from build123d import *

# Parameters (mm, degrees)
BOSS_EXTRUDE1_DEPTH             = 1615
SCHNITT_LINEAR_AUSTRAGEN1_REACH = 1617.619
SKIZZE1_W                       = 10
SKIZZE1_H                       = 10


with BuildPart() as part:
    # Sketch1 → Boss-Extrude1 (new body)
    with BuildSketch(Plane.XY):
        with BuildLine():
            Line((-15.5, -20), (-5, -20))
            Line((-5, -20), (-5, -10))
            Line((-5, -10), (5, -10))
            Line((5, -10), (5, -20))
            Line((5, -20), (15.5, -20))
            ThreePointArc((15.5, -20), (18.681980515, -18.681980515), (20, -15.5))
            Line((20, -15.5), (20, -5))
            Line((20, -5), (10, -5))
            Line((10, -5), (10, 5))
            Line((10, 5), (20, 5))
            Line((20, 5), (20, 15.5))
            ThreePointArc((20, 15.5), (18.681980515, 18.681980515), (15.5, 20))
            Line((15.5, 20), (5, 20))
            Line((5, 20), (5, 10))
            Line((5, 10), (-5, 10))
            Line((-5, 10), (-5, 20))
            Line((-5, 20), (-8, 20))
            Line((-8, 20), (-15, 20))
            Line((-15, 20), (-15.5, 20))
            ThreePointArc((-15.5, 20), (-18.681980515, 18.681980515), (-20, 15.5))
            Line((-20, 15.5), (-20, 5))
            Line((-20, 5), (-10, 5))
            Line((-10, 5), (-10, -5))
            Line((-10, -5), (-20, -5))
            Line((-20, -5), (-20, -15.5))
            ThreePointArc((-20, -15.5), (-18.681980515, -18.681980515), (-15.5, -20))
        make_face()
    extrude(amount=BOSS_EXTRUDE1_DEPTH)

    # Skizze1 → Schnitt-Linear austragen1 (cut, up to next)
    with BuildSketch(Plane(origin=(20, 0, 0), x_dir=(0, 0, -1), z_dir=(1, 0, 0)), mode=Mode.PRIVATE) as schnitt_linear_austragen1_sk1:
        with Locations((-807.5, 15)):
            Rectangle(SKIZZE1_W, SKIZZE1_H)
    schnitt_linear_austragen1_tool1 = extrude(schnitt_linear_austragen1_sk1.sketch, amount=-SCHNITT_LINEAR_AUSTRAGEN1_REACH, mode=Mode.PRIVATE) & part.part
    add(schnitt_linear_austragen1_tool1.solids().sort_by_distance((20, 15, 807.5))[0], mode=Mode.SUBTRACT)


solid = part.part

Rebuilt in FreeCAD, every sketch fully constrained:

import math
import FreeCAD as App
import Part
import Sketcher
from FreeCAD import Vector

doc = App.newDocument("Part")
body = doc.addObject("PartDesign::Body", "Body")

# Sketch on XY plane
sketch1 = body.newObject("Sketcher::SketchObject", "Sketch")
sketch1.AttachmentSupport = (doc.getObject("XY_Plane"), [""])
sketch1.MapMode = "FlatFace"
sketch1.addGeometry(Part.LineSegment(Vector(-15.5, -20, 0), Vector(-5, -20, 0)), False)
sketch1.addGeometry(Part.LineSegment(Vector(-5, -20, 0), Vector(-5, -10, 0)), False)
sketch1.addGeometry(Part.LineSegment(Vector(-5, -10, 0), Vector(5, -10, 0)), False)
sketch1.addGeometry(Part.LineSegment(Vector(5, -10, 0), Vector(5, -20, 0)), False)
sketch1.addGeometry(Part.LineSegment(Vector(5, -20, 0), Vector(15.5, -20, 0)), False)
sketch1.addGeometry(Part.ArcOfCircle(Part.Circle(Vector(15.5, -15.5, 0), Vector(0, 0, 1), 4.5), math.radians(-90), math.radians(0)), False)
sketch1.addGeometry(Part.LineSegment(Vector(20, -15.5, 0), Vector(20, -5, 0)), False)
sketch1.addGeometry(Part.LineSegment(Vector(20, -5, 0), Vector(10, -5, 0)), False)
sketch1.addGeometry(Part.LineSegment(Vector(10, -5, 0), Vector(10, 5, 0)), False)
sketch1.addGeometry(Part.LineSegment(Vector(10, 5, 0), Vector(20, 5, 0)), False)
sketch1.addGeometry(Part.LineSegment(Vector(20, 5, 0), Vector(20, 15.5, 0)), False)
sketch1.addGeometry(Part.ArcOfCircle(Part.Circle(Vector(15.5, 15.5, 0), Vector(0, 0, 1), 4.5), math.radians(0), math.radians(90)), False)
sketch1.addGeometry(Part.LineSegment(Vector(15.5, 20, 0), Vector(5, 20, 0)), False)
sketch1.addGeometry(Part.LineSegment(Vector(5, 20, 0), Vector(5, 10, 0)), False)
sketch1.addGeometry(Part.LineSegment(Vector(5, 10, 0), Vector(-5, 10, 0)), False)
sketch1.addGeometry(Part.LineSegment(Vector(-5, 10, 0), Vector(-5, 20, 0)), False)
sketch1.addGeometry(Part.LineSegment(Vector(-5, 20, 0), Vector(-15.5, 20, 0)), False)
sketch1.addGeometry(Part.ArcOfCircle(Part.Circle(Vector(-15.5, 15.5, 0), Vector(0, 0, 1), 4.5), math.radians(90), math.radians(180)), False)
sketch1.addGeometry(Part.LineSegment(Vector(-20, 15.5, 0), Vector(-20, 5, 0)), False)
sketch1.addGeometry(Part.LineSegment(Vector(-20, 5, 0), Vector(-10, 5, 0)), False)
sketch1.addGeometry(Part.LineSegment(Vector(-10, 5, 0), Vector(-10, -5, 0)), False)
sketch1.addGeometry(Part.LineSegment(Vector(-10, -5, 0), Vector(-20, -5, 0)), False)
sketch1.addGeometry(Part.LineSegment(Vector(-20, -5, 0), Vector(-20, -15.5, 0)), False)
sketch1.addGeometry(Part.ArcOfCircle(Part.Circle(Vector(-15.5, -15.5, 0), Vector(0, 0, 1), 4.5), math.radians(-180), math.radians(-90)), False)
sketch1.addConstraint(Sketcher.Constraint("Coincident", 0, 2, 1, 1))
sketch1.addConstraint(Sketcher.Constraint("Coincident", 1, 2, 2, 1))
sketch1.addConstraint(Sketcher.Constraint("Coincident", 2, 2, 3, 1))
sketch1.addConstraint(Sketcher.Constraint("Coincident", 3, 2, 4, 1))
sketch1.addConstraint(Sketcher.Constraint("Tangent", 4, 2, 5, 1))
sketch1.addConstraint(Sketcher.Constraint("Tangent", 5, 2, 6, 1))
sketch1.addConstraint(Sketcher.Constraint("Coincident", 6, 2, 7, 1))
sketch1.addConstraint(Sketcher.Constraint("Coincident", 7, 2, 8, 1))
sketch1.addConstraint(Sketcher.Constraint("Coincident", 8, 2, 9, 1))
sketch1.addConstraint(Sketcher.Constraint("Coincident", 9, 2, 10, 1))
sketch1.addConstraint(Sketcher.Constraint("Tangent", 10, 2, 11, 1))
sketch1.addConstraint(Sketcher.Constraint("Tangent", 11, 2, 12, 1))
sketch1.addConstraint(Sketcher.Constraint("Coincident", 12, 2, 13, 1))
sketch1.addConstraint(Sketcher.Constraint("Coincident", 13, 2, 14, 1))
sketch1.addConstraint(Sketcher.Constraint("Coincident", 14, 2, 15, 1))
sketch1.addConstraint(Sketcher.Constraint("Coincident", 15, 2, 16, 1))
sketch1.addConstraint(Sketcher.Constraint("Tangent", 16, 2, 17, 1))
sketch1.addConstraint(Sketcher.Constraint("Tangent", 17, 2, 18, 1))
sketch1.addConstraint(Sketcher.Constraint("Coincident", 18, 2, 19, 1))
sketch1.addConstraint(Sketcher.Constraint("Coincident", 19, 2, 20, 1))
sketch1.addConstraint(Sketcher.Constraint("Coincident", 20, 2, 21, 1))
sketch1.addConstraint(Sketcher.Constraint("Coincident", 21, 2, 22, 1))
sketch1.addConstraint(Sketcher.Constraint("Tangent", 22, 2, 23, 1))
sketch1.addConstraint(Sketcher.Constraint("Tangent", 23, 2, 0, 1))
sketch1.addConstraint(Sketcher.Constraint("Horizontal", 0))
sketch1.addConstraint(Sketcher.Constraint("Vertical", 1))
sketch1.addConstraint(Sketcher.Constraint("Horizontal", 2))
sketch1.addConstraint(Sketcher.Constraint("Vertical", 3))
sketch1.addConstraint(Sketcher.Constraint("Horizontal", 4))
sketch1.addConstraint(Sketcher.Constraint("Vertical", 6))
sketch1.addConstraint(Sketcher.Constraint("Horizontal", 7))
sketch1.addConstraint(Sketcher.Constraint("Vertical", 8))
sketch1.addConstraint(Sketcher.Constraint("Horizontal", 9))
sketch1.addConstraint(Sketcher.Constraint("Vertical", 10))
sketch1.addConstraint(Sketcher.Constraint("Horizontal", 12))
sketch1.addConstraint(Sketcher.Constraint("Vertical", 13))
sketch1.addConstraint(Sketcher.Constraint("Horizontal", 14))
sketch1.addConstraint(Sketcher.Constraint("Vertical", 15))
sketch1.addConstraint(Sketcher.Constraint("Horizontal", 16))
sketch1.addConstraint(Sketcher.Constraint("Vertical", 18))
sketch1.addConstraint(Sketcher.Constraint("Horizontal", 19))
sketch1.addConstraint(Sketcher.Constraint("Vertical", 20))
sketch1.addConstraint(Sketcher.Constraint("Horizontal", 21))
sketch1.addConstraint(Sketcher.Constraint("Vertical", 22))
sketch1.addConstraint(Sketcher.Constraint("Equal", 5, 11))
sketch1.addConstraint(Sketcher.Constraint("Equal", 11, 17))
sketch1.addConstraint(Sketcher.Constraint("Equal", 17, 23))
sketch1.addConstraint(Sketcher.Constraint("Symmetric", 5, 3, 17, 3, -1, 1))
sketch1.addConstraint(Sketcher.Constraint("Symmetric", 11, 3, 23, 3, -1, 1))
sketch1.addConstraint(Sketcher.Constraint("Symmetric", 1, 2, 13, 2, -1, 1))
sketch1.addConstraint(Sketcher.Constraint("Symmetric", 7, 2, 19, 2, -1, 1))
sketch1.addConstraint(Sketcher.Constraint("Symmetric", 11, 3, 17, 3, -2))
sketch1.addConstraint(Sketcher.Constraint("Horizontal", 9, 2, 18, 2))
sketch1.addConstraint(Sketcher.Constraint("Horizontal", 7, 2, 20, 2))
sketch1.addConstraint(Sketcher.Constraint("Vertical", 3, 2, 12, 2))
sketch1.addConstraint(Sketcher.Constraint("Vertical", 1, 2, 14, 2))
sketch1.addConstraint(Sketcher.Constraint("Equal", 2, 7))
sketch1.addConstraint(Sketcher.Constraint("Equal", 21, 1))
sketch1.addConstraint(Sketcher.Constraint("Equal", 16, 6))
sketch1.addConstraint(Sketcher.Constraint("Equal", 3, 8))
sketch1.addConstraint(Sketcher.Constraint("Radius", 5, 4.5))
sketch1.addConstraint(Sketcher.Constraint("DistanceX", 2, 1, 2, 2, 10.0))
sketch1.addConstraint(Sketcher.Constraint("DistanceX", 0, 1, 0, 2, 10.5))
pad1 = body.newObject("PartDesign::Pad", "Pad")
pad1.Profile = sketch1
pad1.Length = 1615

# Sketch on YZ plane
sketch2 = body.newObject("Sketcher::SketchObject", "Sketch001")
sketch2.AttachmentSupport = (doc.getObject("YZ_Plane"), [""])
sketch2.MapMode = "FlatFace"
sketch2.AttachmentOffset = App.Placement(Vector(0, 0, 20), App.Rotation())
sketch2.addGeometry(Part.LineSegment(Vector(20, 812, 0), Vector(10, 812, 0)), False)
sketch2.addGeometry(Part.LineSegment(Vector(10, 812, 0), Vector(10, 802, 0)), False)
sketch2.addGeometry(Part.LineSegment(Vector(10, 802, 0), Vector(20, 802, 0)), False)
sketch2.addGeometry(Part.LineSegment(Vector(20, 802, 0), Vector(20, 812, 0)), False)
sketch2.addConstraint(Sketcher.Constraint("Coincident", 0, 2, 1, 1))
sketch2.addConstraint(Sketcher.Constraint("Coincident", 1, 2, 2, 1))
sketch2.addConstraint(Sketcher.Constraint("Coincident", 2, 2, 3, 1))
sketch2.addConstraint(Sketcher.Constraint("Coincident", 3, 2, 0, 1))
sketch2.addConstraint(Sketcher.Constraint("Horizontal", 0))
sketch2.addConstraint(Sketcher.Constraint("Vertical", 1))
sketch2.addConstraint(Sketcher.Constraint("Horizontal", 2))
sketch2.addConstraint(Sketcher.Constraint("Vertical", 3))
sketch2.addConstraint(Sketcher.Constraint("Equal", 2, 1))
sketch2.addConstraint(Sketcher.Constraint("DistanceX", 0, 2, 0, 1, 10.0))
sketch2.addConstraint(Sketcher.Constraint("DistanceX", -1, 1, 0, 2, 10.0))
sketch2.addConstraint(Sketcher.Constraint("DistanceY", -1, 1, 0, 2, 812.5))
pocket1 = body.newObject("PartDesign::Pocket", "Pocket")
pocket1.Profile = sketch2
pocket1.Type = "UpToFirst"

doc.recompute()
